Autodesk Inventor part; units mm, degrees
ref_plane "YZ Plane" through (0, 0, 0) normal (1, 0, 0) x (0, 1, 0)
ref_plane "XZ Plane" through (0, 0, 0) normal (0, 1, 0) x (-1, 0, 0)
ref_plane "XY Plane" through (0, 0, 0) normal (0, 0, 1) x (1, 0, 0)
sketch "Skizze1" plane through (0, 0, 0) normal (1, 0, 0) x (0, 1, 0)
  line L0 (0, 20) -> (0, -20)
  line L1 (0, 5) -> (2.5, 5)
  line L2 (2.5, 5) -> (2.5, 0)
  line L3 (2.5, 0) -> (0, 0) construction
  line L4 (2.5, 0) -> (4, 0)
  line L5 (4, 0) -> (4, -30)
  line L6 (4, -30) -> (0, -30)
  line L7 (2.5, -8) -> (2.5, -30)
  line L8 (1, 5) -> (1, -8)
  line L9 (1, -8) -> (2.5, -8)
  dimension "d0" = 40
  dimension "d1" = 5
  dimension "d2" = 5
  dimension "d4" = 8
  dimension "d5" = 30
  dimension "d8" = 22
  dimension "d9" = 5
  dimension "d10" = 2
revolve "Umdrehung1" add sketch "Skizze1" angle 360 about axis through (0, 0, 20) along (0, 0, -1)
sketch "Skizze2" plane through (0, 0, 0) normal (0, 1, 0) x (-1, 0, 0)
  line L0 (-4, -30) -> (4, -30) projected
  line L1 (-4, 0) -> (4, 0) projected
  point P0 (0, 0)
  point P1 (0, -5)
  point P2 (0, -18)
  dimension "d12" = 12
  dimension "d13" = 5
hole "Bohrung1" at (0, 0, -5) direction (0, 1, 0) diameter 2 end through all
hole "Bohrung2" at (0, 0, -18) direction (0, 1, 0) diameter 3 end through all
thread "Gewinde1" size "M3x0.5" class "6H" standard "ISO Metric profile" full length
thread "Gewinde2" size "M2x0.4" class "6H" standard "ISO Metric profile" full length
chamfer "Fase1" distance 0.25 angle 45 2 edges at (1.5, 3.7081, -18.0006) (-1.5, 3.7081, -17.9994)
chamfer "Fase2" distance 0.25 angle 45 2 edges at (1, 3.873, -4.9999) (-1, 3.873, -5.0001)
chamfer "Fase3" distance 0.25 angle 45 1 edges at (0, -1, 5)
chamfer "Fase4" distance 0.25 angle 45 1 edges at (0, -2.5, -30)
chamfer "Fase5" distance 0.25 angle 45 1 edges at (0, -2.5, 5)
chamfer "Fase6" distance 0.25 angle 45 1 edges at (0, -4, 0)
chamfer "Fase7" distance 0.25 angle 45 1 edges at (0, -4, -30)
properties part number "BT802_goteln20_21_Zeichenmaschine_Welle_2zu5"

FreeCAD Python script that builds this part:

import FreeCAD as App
import Part
import Sketcher
Q = App.Units.Quantity


def edges_at(feature, points):
    """Names of the edges that pass closest to the given points."""
    edges = feature.Shape.Edges
    near = lambda p: min(range(len(edges)), key=lambda i: edges[i].distToShape(Part.Vertex(*p))[0])
    return sorted({f"Edge{near(p) + 1}" for p in points})


def add_polygon(sketch, points):
    """Adds a closed chain of lines whose ends are joined by coincident constraints."""
    first, n = sketch.GeometryCount, len(points)
    for a, b in zip(points, points[1:] + points[:1]):
        sketch.addGeometry(Part.LineSegment(App.Vector(*a, 0), App.Vector(*b, 0)), False)
    for i in range(n):
        sketch.addConstraint(Sketcher.Constraint("Coincident", first + i, 2, first + (i + 1) % n, 1))

doc = App.newDocument("Part")
params = doc.addObject("Spreadsheet::Sheet", "Params")
for row, (alias, value) in enumerate([
    ("sketch1_height", "22 mm"),
    ("sketch1_height2", "30 mm"),
    ("sketch1_height3", "5 mm"),
    ("sketch1_width", "1.5 mm"),
    ("revolution_angle", "360 deg"),
    ("sketch2_diameter", "2 mm"),
    ("hole_diameter", "2 mm"),
    ("sketch3_diameter", "3 mm"),
    ("hole2_diameter", "3 mm"),
    ("chamfer_size", "0.25 mm"),
    ("chamfer2_size", "0.25 mm"),
    ("chamfer3_size", "0.25 mm"),
    ("chamfer4_size", "0.25 mm"),
    ("chamfer5_size", "0.25 mm"),
    ("chamfer6_size", "0.25 mm"),
    ("chamfer7_size", "0.25 mm"),
], start=1):
    params.set(f"A{row}", alias)
    params.set(f"B{row}", "=" + value)
    params.setAlias(f"B{row}", alias)

body = doc.addObject("PartDesign::Body", "Body")

# Sketch on YZ plane
sketch1 = body.newObject("Sketcher::SketchObject", "Sketch")
sketch1.AttachmentSupport = (doc.getObject("YZ_Plane"), [""])
sketch1.MapMode = "FlatFace"
add_polygon(sketch1, [(2.5, 5), (1, 5), (1, -8), (2.5, -8), (2.5, -30), (4, -30), (4, 0), (2.5, 0)])  # lines 0-7
sketch1.addConstraint(Sketcher.Constraint("Horizontal", 0))
sketch1.addConstraint(Sketcher.Constraint("Vertical", 1))
sketch1.addConstraint(Sketcher.Constraint("Horizontal", 2))
sketch1.addConstraint(Sketcher.Constraint("Vertical", 3))
sketch1.addConstraint(Sketcher.Constraint("Horizontal", 4))
sketch1.addConstraint(Sketcher.Constraint("Vertical", 5))
sketch1.addConstraint(Sketcher.Constraint("Horizontal", 6))
sketch1.addConstraint(Sketcher.Constraint("Vertical", 7))
sketch1.addConstraint(Sketcher.Constraint("PointOnObject", 5, 2, -1))
sketch1.addConstraint(Sketcher.Constraint("Vertical", 3, 2, 6, 2))
sketch1.addConstraint(Sketcher.Constraint("Equal", 2, 4))
sketch1.addConstraint(Sketcher.Constraint("DistanceY", 3, 2, 3, 1, Q("22 mm")))
sketch1.addConstraint(Sketcher.Constraint("DistanceY", 5, 1, 5, 2, Q("30 mm")))
sketch1.addConstraint(Sketcher.Constraint("DistanceY", 7, 1, 7, 2, Q("5 mm")))
sketch1.addConstraint(Sketcher.Constraint("DistanceX", 0, 2, 0, 1, Q("1.5 mm")))
sketch1.addConstraint(Sketcher.Constraint("DistanceX", -1, 1, 0, 2, Q("1 mm")))
sketch1.setExpression("Constraints[19]", "Params.sketch1_height")
sketch1.setExpression("Constraints[20]", "Params.sketch1_height2")
sketch1.setExpression("Constraints[21]", "Params.sketch1_height3")
sketch1.setExpression("Constraints[22]", "Params.sketch1_width")
revolution = body.newObject("PartDesign::Revolution", "Revolution")
revolution.Profile = sketch1
revolution.ReferenceAxis = (sketch1, ["V_Axis"])
revolution.setExpression("Angle", "Params.revolution_angle")

# Sketch on XZ plane
sketch2 = body.newObject("Sketcher::SketchObject", "Sketch001")
sketch2.AttachmentSupport = (doc.getObject("XZ_Plane"), [""])
sketch2.MapMode = "FlatFace"
sketch2.addGeometry(Part.Circle(App.Vector(0, -5, 0), App.Vector(0, 0, 1), 1), False)
sketch2.addConstraint(Sketcher.Constraint("PointOnObject", 0, 3, -2))
sketch2.addConstraint(Sketcher.Constraint("Diameter", 0, Q("2 mm")))
sketch2.addConstraint(Sketcher.Constraint("DistanceY", 0, 3, -1, 1, Q("5 mm")))
sketch2.setExpression("Constraints[1]", "Params.sketch2_diameter")
doc.recompute()
hole = body.newObject("PartDesign::Hole", "Hole")
hole.Profile = sketch2
hole.ThreadType = "None"
hole.setExpression("Diameter", "Params.hole_diameter")
hole.DepthType = "ThroughAll"

# Sketch on XZ plane
sketch3 = body.newObject("Sketcher::SketchObject", "Sketch002")
sketch3.AttachmentSupport = (doc.getObject("XZ_Plane"), [""])
sketch3.MapMode = "FlatFace"
sketch3.addGeometry(Part.Circle(App.Vector(0, -18, 0), App.Vector(0, 0, 1), 1.5), False)
sketch3.addConstraint(Sketcher.Constraint("PointOnObject", 0, 3, -2))
sketch3.addConstraint(Sketcher.Constraint("Diameter", 0, Q("3 mm")))
sketch3.addConstraint(Sketcher.Constraint("DistanceY", 0, 3, -1, 1, Q("18 mm")))
sketch3.setExpression("Constraints[1]", "Params.sketch3_diameter")
doc.recompute()
hole2 = body.newObject("PartDesign::Hole", "Hole001")
hole2.Profile = sketch3
hole2.ThreadType = "None"
hole2.setExpression("Diameter", "Params.hole2_diameter")
hole2.DepthType = "ThroughAll"
doc.recompute()

chamfer = body.newObject("PartDesign::Chamfer", "Chamfer")
chamfer.Base = (hole2, edges_at(hole2, [(1.5, 3.708, -18.001), (-1.5, 3.708, -17.999)]))
chamfer.setExpression("Size", "Params.chamfer_size")
doc.recompute()

chamfer2 = body.newObject("PartDesign::Chamfer", "Chamfer001")
chamfer2.Base = (chamfer, edges_at(chamfer, [(1, 3.873, -5), (-1, 3.873, -5)]))
chamfer2.setExpression("Size", "Params.chamfer2_size")
doc.recompute()

chamfer3 = body.newObject("PartDesign::Chamfer", "Chamfer002")
chamfer3.Base = (chamfer2, edges_at(chamfer2, [(0, -1, 5)]))
chamfer3.setExpression("Size", "Params.chamfer3_size")
doc.recompute()

chamfer4 = body.newObject("PartDesign::Chamfer", "Chamfer003")
chamfer4.Base = (chamfer3, edges_at(chamfer3, [(0, -2.5, -30)]))
chamfer4.setExpression("Size", "Params.chamfer4_size")
doc.recompute()

chamfer5 = body.newObject("PartDesign::Chamfer", "Chamfer004")
chamfer5.Base = (chamfer4, edges_at(chamfer4, [(0, -2.5, 5)]))
chamfer5.setExpression("Size", "Params.chamfer5_size")
doc.recompute()

chamfer6 = body.newObject("PartDesign::Chamfer", "Chamfer005")
chamfer6.Base = (chamfer5, edges_at(chamfer5, [(0, -4, 0)]))
chamfer6.setExpression("Size", "Params.chamfer6_size")
doc.recompute()

chamfer7 = body.newObject("PartDesign::Chamfer", "Chamfer006")
chamfer7.Base = (chamfer6, edges_at(chamfer6, [(0, -4, -30)]))
chamfer7.setExpression("Size", "Params.chamfer7_size")

doc.recompute()
